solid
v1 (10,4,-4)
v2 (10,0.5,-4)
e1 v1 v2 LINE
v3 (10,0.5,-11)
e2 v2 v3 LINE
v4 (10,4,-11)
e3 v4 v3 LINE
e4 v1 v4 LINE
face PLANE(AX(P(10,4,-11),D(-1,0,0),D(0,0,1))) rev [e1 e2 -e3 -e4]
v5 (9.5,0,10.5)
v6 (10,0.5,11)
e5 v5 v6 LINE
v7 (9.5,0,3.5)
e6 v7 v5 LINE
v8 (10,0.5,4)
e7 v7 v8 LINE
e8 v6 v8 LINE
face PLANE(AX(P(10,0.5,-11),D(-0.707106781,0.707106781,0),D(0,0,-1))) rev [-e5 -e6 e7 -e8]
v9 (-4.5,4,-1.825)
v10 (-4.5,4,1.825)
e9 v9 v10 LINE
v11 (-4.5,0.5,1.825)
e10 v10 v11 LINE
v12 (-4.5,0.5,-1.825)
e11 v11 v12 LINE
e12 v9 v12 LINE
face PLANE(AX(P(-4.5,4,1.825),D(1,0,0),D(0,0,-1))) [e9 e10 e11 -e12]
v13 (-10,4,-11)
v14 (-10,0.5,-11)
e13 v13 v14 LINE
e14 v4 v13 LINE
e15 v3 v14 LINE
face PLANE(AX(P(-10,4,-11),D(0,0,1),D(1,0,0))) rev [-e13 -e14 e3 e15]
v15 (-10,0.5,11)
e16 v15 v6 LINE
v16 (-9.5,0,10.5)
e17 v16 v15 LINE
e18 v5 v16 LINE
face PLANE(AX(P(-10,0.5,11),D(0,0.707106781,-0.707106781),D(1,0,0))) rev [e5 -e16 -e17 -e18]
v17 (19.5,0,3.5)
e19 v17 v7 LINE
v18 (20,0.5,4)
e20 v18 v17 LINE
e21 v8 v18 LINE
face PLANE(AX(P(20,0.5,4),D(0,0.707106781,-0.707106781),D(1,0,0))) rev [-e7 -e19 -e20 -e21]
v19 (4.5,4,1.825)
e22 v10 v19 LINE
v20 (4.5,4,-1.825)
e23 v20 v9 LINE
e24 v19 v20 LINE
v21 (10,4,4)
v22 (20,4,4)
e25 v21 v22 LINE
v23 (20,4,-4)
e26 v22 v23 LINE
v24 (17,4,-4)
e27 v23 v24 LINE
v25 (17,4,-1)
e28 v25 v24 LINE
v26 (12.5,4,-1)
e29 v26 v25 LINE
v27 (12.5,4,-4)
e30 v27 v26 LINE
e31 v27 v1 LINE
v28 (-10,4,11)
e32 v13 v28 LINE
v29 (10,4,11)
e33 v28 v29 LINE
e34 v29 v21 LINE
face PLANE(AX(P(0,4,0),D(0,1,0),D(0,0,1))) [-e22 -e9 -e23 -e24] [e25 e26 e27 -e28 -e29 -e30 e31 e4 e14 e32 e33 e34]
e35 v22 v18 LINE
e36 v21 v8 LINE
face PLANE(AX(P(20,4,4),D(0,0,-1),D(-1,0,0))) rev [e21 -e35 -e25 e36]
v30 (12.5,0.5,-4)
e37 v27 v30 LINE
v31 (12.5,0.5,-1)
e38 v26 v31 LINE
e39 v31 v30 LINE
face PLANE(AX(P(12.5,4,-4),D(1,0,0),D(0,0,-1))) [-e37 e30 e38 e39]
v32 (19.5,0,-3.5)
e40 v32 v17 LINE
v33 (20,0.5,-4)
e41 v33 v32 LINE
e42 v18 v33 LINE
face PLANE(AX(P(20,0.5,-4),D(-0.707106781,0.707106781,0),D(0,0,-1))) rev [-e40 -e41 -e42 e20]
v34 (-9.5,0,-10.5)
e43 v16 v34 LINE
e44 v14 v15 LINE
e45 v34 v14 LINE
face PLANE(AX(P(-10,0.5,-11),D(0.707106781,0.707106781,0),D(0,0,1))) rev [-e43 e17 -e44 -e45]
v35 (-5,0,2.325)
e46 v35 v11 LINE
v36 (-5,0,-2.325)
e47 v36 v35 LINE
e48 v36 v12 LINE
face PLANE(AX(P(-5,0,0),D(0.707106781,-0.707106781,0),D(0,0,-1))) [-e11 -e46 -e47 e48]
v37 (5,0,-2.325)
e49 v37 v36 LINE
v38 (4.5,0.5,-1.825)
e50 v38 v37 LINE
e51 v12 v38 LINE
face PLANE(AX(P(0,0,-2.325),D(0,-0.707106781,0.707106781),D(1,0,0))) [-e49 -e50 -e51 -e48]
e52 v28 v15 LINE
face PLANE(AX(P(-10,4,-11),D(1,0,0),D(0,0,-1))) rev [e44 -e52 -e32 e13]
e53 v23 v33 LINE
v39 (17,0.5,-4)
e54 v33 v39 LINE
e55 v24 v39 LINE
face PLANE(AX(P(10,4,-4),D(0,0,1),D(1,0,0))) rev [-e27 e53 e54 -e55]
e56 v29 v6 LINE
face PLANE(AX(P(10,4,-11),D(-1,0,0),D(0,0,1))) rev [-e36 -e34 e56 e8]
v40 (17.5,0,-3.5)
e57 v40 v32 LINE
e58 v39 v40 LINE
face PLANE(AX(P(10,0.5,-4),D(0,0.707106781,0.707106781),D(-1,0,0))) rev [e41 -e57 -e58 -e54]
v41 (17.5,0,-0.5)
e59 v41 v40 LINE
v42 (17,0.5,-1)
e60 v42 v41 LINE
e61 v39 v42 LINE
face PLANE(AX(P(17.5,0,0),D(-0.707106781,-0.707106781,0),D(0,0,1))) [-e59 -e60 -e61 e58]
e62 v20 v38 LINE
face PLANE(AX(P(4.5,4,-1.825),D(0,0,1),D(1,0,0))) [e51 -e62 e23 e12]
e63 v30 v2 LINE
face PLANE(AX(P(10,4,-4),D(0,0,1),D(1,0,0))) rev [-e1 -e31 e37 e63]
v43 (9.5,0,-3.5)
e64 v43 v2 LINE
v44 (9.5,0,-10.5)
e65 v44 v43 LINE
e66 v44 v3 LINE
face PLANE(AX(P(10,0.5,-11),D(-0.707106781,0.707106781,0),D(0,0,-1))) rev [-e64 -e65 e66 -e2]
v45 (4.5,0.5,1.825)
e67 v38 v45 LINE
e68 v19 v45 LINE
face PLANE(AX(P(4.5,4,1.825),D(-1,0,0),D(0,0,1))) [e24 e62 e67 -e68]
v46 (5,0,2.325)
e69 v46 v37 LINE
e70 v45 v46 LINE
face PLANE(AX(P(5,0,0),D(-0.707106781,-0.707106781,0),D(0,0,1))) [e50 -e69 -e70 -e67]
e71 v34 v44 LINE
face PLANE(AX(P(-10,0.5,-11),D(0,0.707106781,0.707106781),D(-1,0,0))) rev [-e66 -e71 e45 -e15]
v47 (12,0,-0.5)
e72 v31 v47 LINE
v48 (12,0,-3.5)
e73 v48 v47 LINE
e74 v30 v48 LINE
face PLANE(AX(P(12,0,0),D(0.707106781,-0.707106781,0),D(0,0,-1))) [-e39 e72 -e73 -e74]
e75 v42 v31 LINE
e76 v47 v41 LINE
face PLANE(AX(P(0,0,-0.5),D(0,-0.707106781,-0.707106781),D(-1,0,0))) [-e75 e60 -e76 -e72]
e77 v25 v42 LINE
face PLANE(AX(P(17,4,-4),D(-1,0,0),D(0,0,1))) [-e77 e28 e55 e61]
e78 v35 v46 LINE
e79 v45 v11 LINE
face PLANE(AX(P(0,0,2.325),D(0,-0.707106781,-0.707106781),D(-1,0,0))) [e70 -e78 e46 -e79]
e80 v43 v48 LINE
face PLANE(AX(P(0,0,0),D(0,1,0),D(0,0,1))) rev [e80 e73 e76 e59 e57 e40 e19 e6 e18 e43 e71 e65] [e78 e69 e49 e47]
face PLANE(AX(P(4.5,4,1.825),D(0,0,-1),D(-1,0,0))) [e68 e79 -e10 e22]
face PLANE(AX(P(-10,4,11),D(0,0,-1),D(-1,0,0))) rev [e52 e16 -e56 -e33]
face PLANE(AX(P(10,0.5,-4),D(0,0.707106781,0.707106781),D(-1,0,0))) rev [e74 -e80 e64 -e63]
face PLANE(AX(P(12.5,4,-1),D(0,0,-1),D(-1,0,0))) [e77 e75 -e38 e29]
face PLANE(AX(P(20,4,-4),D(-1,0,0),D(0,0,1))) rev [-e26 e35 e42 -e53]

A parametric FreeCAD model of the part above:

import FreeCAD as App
import Part
import Sketcher
Q = App.Units.Quantity


def edges_at(feature, points):
    """Names of the edges that pass closest to the given points."""
    edges = feature.Shape.Edges
    near = lambda p: min(range(len(edges)), key=lambda i: edges[i].distToShape(Part.Vertex(*p))[0])
    return sorted({f"Edge{near(p) + 1}" for p in points})

doc = App.newDocument("Part")
body = doc.addObject("PartDesign::Body", "Body")

# Sketch on XZ plane
sketch1 = body.newObject("Sketcher::SketchObject", "Sketch")
sketch1.AttachmentSupport = (doc.getObject("XZ_Plane"), [""])
sketch1.MapMode = "FlatFace"
sketch1.addGeometry([
    Part.LineSegment(App.Vector(-10, -11, 0), App.Vector(-10, 11, 0)),  # 0
    Part.LineSegment(App.Vector(-10, 11, 0), App.Vector(10, 11, 0)),  # 1
    Part.LineSegment(App.Vector(10, 11, 0), App.Vector(10, -11, 0)),  # 2
    Part.LineSegment(App.Vector(10, -11, 0), App.Vector(-10, -11, 0)),  # 3
    Part.LineSegment(App.Vector(4.5, 1.825, 0), App.Vector(-4.5, 1.825, 0)),  # 4
    Part.LineSegment(App.Vector(-4.5, 1.825, 0), App.Vector(-4.5, -1.825, 0)),  # 5
    Part.LineSegment(App.Vector(-4.5, -1.825, 0), App.Vector(4.5, -1.825, 0)),  # 6
    Part.LineSegment(App.Vector(4.5, -1.825, 0), App.Vector(4.5, 1.825, 0)),  # 7
], False)
sketch1.addConstraint([
    Sketcher.Constraint("Coincident", 0, 2, 1, 1),
    Sketcher.Constraint("Coincident", 1, 2, 2, 1),
    Sketcher.Constraint("Coincident", 2, 2, 3, 1),
    Sketcher.Constraint("Coincident", 3, 2, 0, 1),
    Sketcher.Constraint("Coincident", 4, 2, 5, 1),
    Sketcher.Constraint("Coincident", 5, 2, 6, 1),
    Sketcher.Constraint("Coincident", 6, 2, 7, 1),
    Sketcher.Constraint("Coincident", 7, 2, 4, 1),
    Sketcher.Constraint("Vertical", 0),
    Sketcher.Constraint("Horizontal", 1),
    Sketcher.Constraint("Vertical", 2),
    Sketcher.Constraint("Horizontal", 3),
    Sketcher.Constraint("Horizontal", 4),
    Sketcher.Constraint("Vertical", 5),
    Sketcher.Constraint("Horizontal", 6),
    Sketcher.Constraint("Vertical", 7),
    Sketcher.Constraint("Symmetric", 0, 2, 2, 2, -1, 1),
    Sketcher.Constraint("Symmetric", 4, 2, 6, 2, -1, 1),
    Sketcher.Constraint("DistanceX", 1, 1, 1, 2, Q("20 mm")),
    Sketcher.Constraint("DistanceX", 4, 2, 4, 1, Q("9 mm")),
    Sketcher.Constraint("DistanceY", 0, 1, 0, 2, Q("22 mm")),
    Sketcher.Constraint("DistanceY", 5, 2, 5, 1, Q("3.65 mm")),
])
pad1 = body.newObject("PartDesign::Pad", "Pad")
pad1.Profile = sketch1
pad1.Length = 4
pad1.Reversed = True

# Sketch on XZ plane
sketch2 = body.newObject("Sketcher::SketchObject", "Sketch001")
sketch2.AttachmentSupport = (doc.getObject("XZ_Plane"), [""])
sketch2.MapMode = "FlatFace"
sketch2.addGeometry([
    Part.LineSegment(App.Vector(10, -4, 0), App.Vector(10, 4, 0)),
    Part.LineSegment(App.Vector(10, 4, 0), App.Vector(20, 4, 0)),
    Part.LineSegment(App.Vector(20, 4, 0), App.Vector(20, -4, 0)),
    Part.LineSegment(App.Vector(20, -4, 0), App.Vector(10, -4, 0)),
], False)
sketch2.addConstraint([
    Sketcher.Constraint("Coincident", 0, 2, 1, 1),
    Sketcher.Constraint("Coincident", 1, 2, 2, 1),
    Sketcher.Constraint("Coincident", 2, 2, 3, 1),
    Sketcher.Constraint("Coincident", 3, 2, 0, 1),
    Sketcher.Constraint("Vertical", 0),
    Sketcher.Constraint("Horizontal", 1),
    Sketcher.Constraint("Vertical", 2),
    Sketcher.Constraint("Horizontal", 3),
    Sketcher.Constraint("DistanceX", 1, 1, 1, 2, Q("10 mm")),
    Sketcher.Constraint("DistanceY", 0, 1, 0, 2, Q("8 mm")),
    Sketcher.Constraint("DistanceX", -1, 1, 0, 2, Q("10 mm")),
    Sketcher.Constraint("DistanceY", -1, 1, 0, 2, Q("4 mm")),
])
pad2 = body.newObject("PartDesign::Pad", "Pad001")
pad2.Profile = sketch2
pad2.Length = 4
pad2.Reversed = True

# Sketch on XZ plane
sketch3 = body.newObject("Sketcher::SketchObject", "Sketch002")
sketch3.AttachmentSupport = (doc.getObject("XZ_Plane"), [""])
sketch3.MapMode = "FlatFace"
sketch3.addGeometry([
    Part.LineSegment(App.Vector(12.5, -4, 0), App.Vector(12.5, -1, 0)),
    Part.LineSegment(App.Vector(12.5, -1, 0), App.Vector(17, -1, 0)),
    Part.LineSegment(App.Vector(17, -1, 0), App.Vector(17, -4, 0)),
    Part.LineSegment(App.Vector(17, -4, 0), App.Vector(12.5, -4, 0)),
], False)
sketch3.addConstraint([
    Sketcher.Constraint("Coincident", 0, 2, 1, 1),
    Sketcher.Constraint("Coincident", 1, 2, 2, 1),
    Sketcher.Constraint("Coincident", 2, 2, 3, 1),
    Sketcher.Constraint("Coincident", 3, 2, 0, 1),
    Sketcher.Constraint("Vertical", 0),
    Sketcher.Constraint("Horizontal", 1),
    Sketcher.Constraint("Vertical", 2),
    Sketcher.Constraint("Horizontal", 3),
    Sketcher.Constraint("DistanceY", 0, 1, 0, 2, Q("3 mm")),
    Sketcher.Constraint("DistanceX", 1, 1, 1, 2, Q("4.5 mm")),
    Sketcher.Constraint("DistanceY", 0, 2, -1, 1, Q("1 mm")),
    Sketcher.Constraint("DistanceX", -1, 1, 1, 2, Q("17 mm")),
])
pocket1 = body.newObject("PartDesign::Pocket", "Pocket")
pocket1.Profile = sketch3
pocket1.Type = "ThroughAll"
doc.recompute()

chamfer = body.newObject("PartDesign::Chamfer", "Chamfer")
chamfer.Base = (pocket1, edges_at(pocket1, [
    (4.5, 0, 0),
    (0, 0, -1.825),
    (-4.5, 0, 0),
    (0, 0, 1.825),
    (10, 0, -7.5),
    (15, 0, 4),
    (20, 0, 0),
    (18.5, 0, -4),
    (11.25, 0, -4),
    (12.5, 0, -2.5),
    (14.75, 0, -1),
    (17, 0, -2.5),
    (0, 0, -11),
    (10, 0, 7.5),
    (0, 0, 11),
    (-10, 0, 0),
]))
chamfer.Size = 0.5

doc.recompute()
